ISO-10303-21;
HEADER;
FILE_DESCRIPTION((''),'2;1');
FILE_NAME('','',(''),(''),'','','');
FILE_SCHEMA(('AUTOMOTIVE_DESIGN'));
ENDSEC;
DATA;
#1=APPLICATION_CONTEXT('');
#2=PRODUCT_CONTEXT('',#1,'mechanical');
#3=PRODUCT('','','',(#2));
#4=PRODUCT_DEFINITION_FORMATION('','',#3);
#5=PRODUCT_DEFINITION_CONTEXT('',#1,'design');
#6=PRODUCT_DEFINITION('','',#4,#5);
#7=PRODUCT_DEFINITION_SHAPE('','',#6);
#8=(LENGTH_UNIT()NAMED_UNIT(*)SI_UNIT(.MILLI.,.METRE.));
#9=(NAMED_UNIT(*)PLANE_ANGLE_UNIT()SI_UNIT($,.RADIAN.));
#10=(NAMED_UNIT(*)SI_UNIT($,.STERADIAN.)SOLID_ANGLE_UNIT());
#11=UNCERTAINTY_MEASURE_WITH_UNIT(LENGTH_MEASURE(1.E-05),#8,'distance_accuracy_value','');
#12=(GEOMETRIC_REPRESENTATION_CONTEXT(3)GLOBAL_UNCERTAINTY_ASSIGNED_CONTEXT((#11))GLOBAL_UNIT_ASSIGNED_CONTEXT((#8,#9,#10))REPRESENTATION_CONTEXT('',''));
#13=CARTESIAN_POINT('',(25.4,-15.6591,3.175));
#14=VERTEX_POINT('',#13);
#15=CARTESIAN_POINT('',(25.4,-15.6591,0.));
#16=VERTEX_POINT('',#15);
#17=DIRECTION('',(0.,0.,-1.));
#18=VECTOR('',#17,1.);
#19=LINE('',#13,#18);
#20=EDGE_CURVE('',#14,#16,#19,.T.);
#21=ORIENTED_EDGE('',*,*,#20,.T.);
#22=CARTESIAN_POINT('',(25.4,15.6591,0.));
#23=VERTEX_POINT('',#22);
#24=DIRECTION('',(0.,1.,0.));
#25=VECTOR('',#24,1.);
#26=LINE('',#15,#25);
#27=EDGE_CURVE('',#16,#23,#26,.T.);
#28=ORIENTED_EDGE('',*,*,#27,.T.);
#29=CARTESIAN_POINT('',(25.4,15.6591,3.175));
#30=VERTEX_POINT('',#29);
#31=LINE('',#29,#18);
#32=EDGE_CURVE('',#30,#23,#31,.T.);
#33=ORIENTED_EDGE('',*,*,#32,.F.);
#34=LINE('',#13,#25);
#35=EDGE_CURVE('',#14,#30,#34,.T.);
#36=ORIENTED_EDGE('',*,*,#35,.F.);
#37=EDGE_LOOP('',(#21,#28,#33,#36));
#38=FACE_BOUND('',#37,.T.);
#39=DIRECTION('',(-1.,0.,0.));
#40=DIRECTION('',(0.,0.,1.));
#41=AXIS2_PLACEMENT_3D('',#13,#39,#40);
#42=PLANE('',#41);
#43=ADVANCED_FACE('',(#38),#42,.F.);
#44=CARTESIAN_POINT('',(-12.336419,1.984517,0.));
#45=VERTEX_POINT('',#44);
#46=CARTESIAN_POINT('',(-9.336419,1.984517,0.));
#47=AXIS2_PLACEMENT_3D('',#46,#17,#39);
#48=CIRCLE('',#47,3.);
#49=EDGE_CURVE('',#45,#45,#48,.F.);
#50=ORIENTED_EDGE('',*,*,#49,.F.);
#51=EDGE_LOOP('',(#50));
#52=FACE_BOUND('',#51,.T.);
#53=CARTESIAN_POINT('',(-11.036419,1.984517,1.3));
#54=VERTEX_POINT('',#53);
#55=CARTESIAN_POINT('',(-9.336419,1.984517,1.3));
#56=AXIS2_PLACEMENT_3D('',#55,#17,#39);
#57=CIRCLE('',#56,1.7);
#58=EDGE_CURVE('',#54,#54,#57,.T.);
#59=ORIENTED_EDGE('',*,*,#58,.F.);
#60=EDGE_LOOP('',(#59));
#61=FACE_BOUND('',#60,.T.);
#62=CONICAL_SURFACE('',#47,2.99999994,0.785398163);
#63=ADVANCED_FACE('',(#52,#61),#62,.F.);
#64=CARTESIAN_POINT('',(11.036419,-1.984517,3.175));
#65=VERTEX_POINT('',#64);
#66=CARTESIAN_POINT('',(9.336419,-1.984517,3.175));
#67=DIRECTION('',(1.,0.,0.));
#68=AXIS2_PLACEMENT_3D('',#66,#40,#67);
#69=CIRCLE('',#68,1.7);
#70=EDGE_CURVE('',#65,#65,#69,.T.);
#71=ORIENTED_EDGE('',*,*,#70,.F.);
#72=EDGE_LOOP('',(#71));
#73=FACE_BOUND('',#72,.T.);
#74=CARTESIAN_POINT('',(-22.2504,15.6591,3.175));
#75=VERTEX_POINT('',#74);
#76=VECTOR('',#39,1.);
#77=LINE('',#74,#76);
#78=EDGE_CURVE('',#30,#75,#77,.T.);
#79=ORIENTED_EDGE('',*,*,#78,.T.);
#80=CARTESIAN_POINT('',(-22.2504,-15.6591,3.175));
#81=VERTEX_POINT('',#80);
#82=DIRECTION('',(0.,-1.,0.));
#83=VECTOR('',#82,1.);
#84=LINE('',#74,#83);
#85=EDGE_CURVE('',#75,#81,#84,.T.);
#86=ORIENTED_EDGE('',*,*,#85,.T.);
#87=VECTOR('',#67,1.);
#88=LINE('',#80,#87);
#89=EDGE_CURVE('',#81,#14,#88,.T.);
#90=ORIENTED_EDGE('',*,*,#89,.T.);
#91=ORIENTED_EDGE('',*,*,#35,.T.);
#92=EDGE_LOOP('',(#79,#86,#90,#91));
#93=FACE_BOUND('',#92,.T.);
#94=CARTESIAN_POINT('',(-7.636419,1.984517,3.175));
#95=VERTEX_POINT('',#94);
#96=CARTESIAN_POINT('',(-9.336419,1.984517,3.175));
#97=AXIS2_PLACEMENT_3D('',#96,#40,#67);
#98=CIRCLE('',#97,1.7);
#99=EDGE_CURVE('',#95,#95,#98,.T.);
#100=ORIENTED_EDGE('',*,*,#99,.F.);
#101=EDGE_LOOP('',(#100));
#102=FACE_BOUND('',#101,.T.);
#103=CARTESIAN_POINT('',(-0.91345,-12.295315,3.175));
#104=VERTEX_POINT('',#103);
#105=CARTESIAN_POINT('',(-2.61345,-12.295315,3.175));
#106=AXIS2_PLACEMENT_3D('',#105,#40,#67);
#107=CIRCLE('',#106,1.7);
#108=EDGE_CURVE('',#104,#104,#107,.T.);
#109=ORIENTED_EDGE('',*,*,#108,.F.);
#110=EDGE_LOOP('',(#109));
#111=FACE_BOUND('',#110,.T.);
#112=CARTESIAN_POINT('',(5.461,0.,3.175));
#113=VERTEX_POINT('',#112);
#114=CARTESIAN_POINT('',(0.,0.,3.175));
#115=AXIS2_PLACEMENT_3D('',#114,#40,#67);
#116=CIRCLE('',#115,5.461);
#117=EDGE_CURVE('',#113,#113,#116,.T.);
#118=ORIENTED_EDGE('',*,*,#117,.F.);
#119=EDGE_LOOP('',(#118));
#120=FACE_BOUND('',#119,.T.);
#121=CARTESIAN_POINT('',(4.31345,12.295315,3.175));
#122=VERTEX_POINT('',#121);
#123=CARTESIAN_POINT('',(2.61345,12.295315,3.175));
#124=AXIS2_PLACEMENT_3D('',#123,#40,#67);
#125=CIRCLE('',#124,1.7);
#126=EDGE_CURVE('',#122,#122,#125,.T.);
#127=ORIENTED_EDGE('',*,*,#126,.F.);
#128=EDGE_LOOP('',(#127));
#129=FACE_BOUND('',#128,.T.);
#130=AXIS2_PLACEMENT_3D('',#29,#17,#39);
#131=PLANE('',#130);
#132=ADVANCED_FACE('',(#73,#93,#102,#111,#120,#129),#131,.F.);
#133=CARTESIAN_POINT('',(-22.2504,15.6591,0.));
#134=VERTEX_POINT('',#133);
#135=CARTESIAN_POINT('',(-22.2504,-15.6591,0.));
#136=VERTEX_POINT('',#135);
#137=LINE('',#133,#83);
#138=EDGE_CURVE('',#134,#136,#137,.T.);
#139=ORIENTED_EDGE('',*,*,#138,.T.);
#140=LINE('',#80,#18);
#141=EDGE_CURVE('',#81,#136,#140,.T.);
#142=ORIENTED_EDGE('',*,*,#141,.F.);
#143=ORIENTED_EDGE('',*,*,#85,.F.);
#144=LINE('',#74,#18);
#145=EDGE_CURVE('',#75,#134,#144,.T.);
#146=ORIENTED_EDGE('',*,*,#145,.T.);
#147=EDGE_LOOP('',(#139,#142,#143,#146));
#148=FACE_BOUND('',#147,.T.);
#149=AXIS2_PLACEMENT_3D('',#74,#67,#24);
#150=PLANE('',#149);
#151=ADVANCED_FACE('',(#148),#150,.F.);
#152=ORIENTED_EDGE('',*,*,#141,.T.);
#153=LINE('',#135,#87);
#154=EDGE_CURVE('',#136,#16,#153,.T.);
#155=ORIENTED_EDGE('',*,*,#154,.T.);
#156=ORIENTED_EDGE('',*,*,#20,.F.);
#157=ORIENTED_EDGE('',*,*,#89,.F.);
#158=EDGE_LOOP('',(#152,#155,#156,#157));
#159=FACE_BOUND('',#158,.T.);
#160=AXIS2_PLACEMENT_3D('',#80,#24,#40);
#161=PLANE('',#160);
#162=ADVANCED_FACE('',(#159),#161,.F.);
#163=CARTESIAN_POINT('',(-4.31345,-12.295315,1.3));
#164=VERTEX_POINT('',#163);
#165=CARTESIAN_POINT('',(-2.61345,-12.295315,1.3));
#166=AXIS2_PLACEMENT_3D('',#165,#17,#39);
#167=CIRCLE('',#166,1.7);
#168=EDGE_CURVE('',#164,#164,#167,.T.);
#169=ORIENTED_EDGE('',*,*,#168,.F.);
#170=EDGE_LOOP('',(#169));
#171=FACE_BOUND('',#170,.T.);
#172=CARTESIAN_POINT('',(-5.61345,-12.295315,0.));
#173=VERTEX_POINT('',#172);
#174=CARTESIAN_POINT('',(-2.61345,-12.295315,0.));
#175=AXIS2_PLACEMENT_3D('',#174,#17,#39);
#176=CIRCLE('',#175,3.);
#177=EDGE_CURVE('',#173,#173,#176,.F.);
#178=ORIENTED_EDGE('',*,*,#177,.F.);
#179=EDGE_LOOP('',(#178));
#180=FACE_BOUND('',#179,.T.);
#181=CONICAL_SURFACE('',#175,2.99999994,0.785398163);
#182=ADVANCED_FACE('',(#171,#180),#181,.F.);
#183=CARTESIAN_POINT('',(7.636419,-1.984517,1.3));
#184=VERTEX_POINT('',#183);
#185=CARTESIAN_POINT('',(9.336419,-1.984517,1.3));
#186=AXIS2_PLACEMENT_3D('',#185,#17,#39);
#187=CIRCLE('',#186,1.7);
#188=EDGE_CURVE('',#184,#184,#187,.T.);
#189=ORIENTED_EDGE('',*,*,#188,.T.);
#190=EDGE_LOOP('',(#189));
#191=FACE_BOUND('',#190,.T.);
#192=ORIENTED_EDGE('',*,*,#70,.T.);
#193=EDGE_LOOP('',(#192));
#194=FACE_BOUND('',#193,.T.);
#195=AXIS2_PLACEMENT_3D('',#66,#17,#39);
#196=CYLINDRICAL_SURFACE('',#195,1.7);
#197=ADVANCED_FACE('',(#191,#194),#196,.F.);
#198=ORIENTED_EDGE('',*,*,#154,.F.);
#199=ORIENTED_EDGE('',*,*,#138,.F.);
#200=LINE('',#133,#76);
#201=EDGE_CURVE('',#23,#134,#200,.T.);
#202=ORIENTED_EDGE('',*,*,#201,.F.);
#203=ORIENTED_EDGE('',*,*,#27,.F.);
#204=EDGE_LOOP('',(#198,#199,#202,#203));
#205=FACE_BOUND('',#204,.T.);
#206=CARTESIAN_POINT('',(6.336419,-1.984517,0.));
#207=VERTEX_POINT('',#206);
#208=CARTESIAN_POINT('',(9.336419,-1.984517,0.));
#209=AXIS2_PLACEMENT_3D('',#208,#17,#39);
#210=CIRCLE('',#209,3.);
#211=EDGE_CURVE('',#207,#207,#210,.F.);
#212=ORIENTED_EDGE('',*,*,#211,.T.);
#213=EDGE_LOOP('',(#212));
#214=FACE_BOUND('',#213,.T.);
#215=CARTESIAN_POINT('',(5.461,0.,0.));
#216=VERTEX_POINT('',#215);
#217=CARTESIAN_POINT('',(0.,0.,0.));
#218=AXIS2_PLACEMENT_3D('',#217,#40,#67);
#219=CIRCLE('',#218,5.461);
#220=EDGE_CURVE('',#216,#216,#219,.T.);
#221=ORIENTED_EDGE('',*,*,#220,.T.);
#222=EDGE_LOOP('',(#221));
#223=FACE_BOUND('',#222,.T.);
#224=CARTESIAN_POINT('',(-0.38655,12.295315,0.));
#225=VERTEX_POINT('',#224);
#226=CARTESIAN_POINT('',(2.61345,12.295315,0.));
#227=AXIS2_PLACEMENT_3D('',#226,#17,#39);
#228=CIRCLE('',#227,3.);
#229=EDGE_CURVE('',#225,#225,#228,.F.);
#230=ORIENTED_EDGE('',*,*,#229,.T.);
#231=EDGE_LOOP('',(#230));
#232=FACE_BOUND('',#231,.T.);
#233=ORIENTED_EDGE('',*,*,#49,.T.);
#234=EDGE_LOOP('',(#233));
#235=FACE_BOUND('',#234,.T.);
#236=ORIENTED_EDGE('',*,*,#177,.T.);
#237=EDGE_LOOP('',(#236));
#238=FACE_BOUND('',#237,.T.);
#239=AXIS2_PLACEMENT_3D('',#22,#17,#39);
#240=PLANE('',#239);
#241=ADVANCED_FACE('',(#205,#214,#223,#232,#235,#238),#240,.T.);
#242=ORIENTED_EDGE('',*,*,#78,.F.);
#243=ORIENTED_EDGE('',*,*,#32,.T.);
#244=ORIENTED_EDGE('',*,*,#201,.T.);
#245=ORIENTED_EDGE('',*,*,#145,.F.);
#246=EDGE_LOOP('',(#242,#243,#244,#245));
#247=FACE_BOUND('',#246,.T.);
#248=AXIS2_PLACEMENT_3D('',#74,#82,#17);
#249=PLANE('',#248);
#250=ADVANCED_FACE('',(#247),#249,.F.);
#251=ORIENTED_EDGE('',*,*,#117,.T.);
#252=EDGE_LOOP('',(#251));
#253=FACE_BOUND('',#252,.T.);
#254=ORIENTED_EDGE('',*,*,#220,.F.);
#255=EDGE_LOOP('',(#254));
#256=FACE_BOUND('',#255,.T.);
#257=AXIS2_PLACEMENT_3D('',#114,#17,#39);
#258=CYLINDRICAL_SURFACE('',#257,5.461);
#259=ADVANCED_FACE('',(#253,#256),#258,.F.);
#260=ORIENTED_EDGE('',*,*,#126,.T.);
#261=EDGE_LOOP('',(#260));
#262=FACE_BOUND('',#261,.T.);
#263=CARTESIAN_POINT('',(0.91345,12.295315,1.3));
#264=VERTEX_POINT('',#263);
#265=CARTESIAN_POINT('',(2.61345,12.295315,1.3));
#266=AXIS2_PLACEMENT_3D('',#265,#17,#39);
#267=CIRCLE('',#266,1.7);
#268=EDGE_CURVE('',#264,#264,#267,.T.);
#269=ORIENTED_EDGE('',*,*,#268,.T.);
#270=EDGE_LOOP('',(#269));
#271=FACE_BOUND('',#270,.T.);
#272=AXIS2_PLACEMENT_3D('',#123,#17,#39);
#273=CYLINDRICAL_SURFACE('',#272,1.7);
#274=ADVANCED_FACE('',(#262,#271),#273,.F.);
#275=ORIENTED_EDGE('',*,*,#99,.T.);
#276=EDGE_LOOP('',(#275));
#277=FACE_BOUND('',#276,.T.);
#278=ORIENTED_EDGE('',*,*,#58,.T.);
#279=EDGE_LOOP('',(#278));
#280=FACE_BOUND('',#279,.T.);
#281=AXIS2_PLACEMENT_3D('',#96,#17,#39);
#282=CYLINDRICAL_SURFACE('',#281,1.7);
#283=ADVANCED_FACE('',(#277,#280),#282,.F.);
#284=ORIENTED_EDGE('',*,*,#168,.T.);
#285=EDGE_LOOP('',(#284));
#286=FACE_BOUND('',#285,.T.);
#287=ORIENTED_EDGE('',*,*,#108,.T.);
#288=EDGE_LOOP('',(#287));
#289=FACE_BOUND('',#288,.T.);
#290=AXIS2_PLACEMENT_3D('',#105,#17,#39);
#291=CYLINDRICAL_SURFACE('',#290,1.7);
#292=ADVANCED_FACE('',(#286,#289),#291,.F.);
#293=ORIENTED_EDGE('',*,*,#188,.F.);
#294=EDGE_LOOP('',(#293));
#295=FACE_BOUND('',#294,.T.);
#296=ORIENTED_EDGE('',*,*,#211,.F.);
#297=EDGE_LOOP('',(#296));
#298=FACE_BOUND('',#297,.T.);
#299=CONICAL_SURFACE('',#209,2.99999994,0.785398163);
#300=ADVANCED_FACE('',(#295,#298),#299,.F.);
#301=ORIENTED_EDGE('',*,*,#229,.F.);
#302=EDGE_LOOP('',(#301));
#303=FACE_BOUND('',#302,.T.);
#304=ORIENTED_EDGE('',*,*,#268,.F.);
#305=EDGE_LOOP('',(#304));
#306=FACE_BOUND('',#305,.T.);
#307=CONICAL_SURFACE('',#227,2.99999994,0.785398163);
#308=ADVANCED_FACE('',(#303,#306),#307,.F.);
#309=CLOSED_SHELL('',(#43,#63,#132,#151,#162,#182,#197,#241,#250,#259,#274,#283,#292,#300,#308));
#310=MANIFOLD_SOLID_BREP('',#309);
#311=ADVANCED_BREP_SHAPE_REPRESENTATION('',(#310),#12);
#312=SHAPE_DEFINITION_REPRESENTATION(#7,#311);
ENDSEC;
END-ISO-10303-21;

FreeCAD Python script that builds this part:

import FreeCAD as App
import Part
import Sketcher
from FreeCAD import Vector
Q = App.Units.Quantity


def edges_at(feature, points):
    """Names of the edges that pass closest to the given points."""
    edges = feature.Shape.Edges
    near = lambda p: min(range(len(edges)), key=lambda i: edges[i].distToShape(Part.Vertex(*p))[0])
    return sorted({f"Edge{near(p) + 1}" for p in points})

doc = App.newDocument("Part")
body = doc.addObject("PartDesign::Body", "Body")

# Sketch on XY plane
sketch1 = body.newObject("Sketcher::SketchObject", "Sketch")
sketch1.AttachmentSupport = (doc.getObject("XY_Plane"), [""])
sketch1.MapMode = "FlatFace"
sketch1.addGeometry(Part.LineSegment(Vector(-22.2504, 15.6591, 0), Vector(-22.2504, -15.6591, 0)), False)
sketch1.addGeometry(Part.LineSegment(Vector(-22.2504, -15.6591, 0), Vector(25.4, -15.6591, 0)), False)
sketch1.addGeometry(Part.LineSegment(Vector(25.4, -15.6591, 0), Vector(25.4, 15.6591, 0)), False)
sketch1.addGeometry(Part.LineSegment(Vector(25.4, 15.6591, 0), Vector(-22.2504, 15.6591, 0)), False)
sketch1.addGeometry(Part.Circle(Vector(-2.61345, -12.295315, 0), Vector(0, 0, 1), 1.7), False)
sketch1.addGeometry(Part.Circle(Vector(9.336419, -1.984517, 0), Vector(0, 0, 1), 1.7), False)
sketch1.addGeometry(Part.Circle(Vector(-9.336419, 1.984517, 0), Vector(0, 0, 1), 1.7), False)
sketch1.addGeometry(Part.Circle(Vector(0, 0, 0), Vector(0, 0, 1), 5.461), False)
sketch1.addGeometry(Part.Circle(Vector(2.61345, 12.295315, 0), Vector(0, 0, 1), 1.7), False)
sketch1.addConstraint(Sketcher.Constraint("Coincident", 0, 2, 1, 1))
sketch1.addConstraint(Sketcher.Constraint("Coincident", 1, 2, 2, 1))
sketch1.addConstraint(Sketcher.Constraint("Coincident", 2, 2, 3, 1))
sketch1.addConstraint(Sketcher.Constraint("Coincident", 3, 2, 0, 1))
sketch1.addConstraint(Sketcher.Constraint("Vertical", 0))
sketch1.addConstraint(Sketcher.Constraint("Horizontal", 1))
sketch1.addConstraint(Sketcher.Constraint("Vertical", 2))
sketch1.addConstraint(Sketcher.Constraint("Horizontal", 3))
sketch1.addConstraint(Sketcher.Constraint("Coincident", 7, 3, -1, 1))
sketch1.addConstraint(Sketcher.Constraint("Equal", 4, 5))
sketch1.addConstraint(Sketcher.Constraint("Equal", 5, 6))
sketch1.addConstraint(Sketcher.Constraint("Equal", 6, 8))
sketch1.addConstraint(Sketcher.Constraint("Symmetric", 5, 3, 6, 3, -1, 1))
sketch1.addConstraint(Sketcher.Constraint("Symmetric", 4, 3, 8, 3, -1, 1))
sketch1.addConstraint(Sketcher.Constraint("Diameter", 7, Q("0.43 in")))
sketch1.addConstraint(Sketcher.Constraint("DistanceX", -1, 1, 1, 2, Q("1 in")))
sketch1.addConstraint(Sketcher.Constraint("Diameter", 4, 3.4))
sketch1.addConstraint(Sketcher.Constraint("DistanceX", 1, 1, 1, 2, Q("1.876 in")))
sketch1.addConstraint(Sketcher.Constraint("DistanceY", 0, 2, 0, 1, Q("1.233 in")))
sketch1.addConstraint(Sketcher.Constraint("DistanceY", 0, 2, -1, 1, Q("0.6165 in")))
sketch1.addConstraint(Sketcher.Constraint("DistanceY", 4, 3, 5, 3, 10.310798))
sketch1.addConstraint(Sketcher.Constraint("DistanceX", 4, 3, 8, 3, 5.2269))
sketch1.addConstraint(Sketcher.Constraint("DistanceX", -1, 1, 5, 3, 9.336419))
sketch1.addConstraint(Sketcher.Constraint("DistanceY", 4, 3, 8, 3, 24.590631))
pad1 = body.newObject("PartDesign::Pad", "Pad")
pad1.Profile = sketch1
pad1.Length = Q("0.125 in")
doc.recompute()

chamfer = body.newObject("PartDesign::Chamfer", "Chamfer")
chamfer.Base = (pad1, edges_at(pad1, [
    (7.636, -1.985, 0),
    (-11.036, 1.985, 0),
    (0.913, 12.295, 0),
    (-4.313, -12.295, 0),
]))
chamfer.Size = 1.3

doc.recompute()
